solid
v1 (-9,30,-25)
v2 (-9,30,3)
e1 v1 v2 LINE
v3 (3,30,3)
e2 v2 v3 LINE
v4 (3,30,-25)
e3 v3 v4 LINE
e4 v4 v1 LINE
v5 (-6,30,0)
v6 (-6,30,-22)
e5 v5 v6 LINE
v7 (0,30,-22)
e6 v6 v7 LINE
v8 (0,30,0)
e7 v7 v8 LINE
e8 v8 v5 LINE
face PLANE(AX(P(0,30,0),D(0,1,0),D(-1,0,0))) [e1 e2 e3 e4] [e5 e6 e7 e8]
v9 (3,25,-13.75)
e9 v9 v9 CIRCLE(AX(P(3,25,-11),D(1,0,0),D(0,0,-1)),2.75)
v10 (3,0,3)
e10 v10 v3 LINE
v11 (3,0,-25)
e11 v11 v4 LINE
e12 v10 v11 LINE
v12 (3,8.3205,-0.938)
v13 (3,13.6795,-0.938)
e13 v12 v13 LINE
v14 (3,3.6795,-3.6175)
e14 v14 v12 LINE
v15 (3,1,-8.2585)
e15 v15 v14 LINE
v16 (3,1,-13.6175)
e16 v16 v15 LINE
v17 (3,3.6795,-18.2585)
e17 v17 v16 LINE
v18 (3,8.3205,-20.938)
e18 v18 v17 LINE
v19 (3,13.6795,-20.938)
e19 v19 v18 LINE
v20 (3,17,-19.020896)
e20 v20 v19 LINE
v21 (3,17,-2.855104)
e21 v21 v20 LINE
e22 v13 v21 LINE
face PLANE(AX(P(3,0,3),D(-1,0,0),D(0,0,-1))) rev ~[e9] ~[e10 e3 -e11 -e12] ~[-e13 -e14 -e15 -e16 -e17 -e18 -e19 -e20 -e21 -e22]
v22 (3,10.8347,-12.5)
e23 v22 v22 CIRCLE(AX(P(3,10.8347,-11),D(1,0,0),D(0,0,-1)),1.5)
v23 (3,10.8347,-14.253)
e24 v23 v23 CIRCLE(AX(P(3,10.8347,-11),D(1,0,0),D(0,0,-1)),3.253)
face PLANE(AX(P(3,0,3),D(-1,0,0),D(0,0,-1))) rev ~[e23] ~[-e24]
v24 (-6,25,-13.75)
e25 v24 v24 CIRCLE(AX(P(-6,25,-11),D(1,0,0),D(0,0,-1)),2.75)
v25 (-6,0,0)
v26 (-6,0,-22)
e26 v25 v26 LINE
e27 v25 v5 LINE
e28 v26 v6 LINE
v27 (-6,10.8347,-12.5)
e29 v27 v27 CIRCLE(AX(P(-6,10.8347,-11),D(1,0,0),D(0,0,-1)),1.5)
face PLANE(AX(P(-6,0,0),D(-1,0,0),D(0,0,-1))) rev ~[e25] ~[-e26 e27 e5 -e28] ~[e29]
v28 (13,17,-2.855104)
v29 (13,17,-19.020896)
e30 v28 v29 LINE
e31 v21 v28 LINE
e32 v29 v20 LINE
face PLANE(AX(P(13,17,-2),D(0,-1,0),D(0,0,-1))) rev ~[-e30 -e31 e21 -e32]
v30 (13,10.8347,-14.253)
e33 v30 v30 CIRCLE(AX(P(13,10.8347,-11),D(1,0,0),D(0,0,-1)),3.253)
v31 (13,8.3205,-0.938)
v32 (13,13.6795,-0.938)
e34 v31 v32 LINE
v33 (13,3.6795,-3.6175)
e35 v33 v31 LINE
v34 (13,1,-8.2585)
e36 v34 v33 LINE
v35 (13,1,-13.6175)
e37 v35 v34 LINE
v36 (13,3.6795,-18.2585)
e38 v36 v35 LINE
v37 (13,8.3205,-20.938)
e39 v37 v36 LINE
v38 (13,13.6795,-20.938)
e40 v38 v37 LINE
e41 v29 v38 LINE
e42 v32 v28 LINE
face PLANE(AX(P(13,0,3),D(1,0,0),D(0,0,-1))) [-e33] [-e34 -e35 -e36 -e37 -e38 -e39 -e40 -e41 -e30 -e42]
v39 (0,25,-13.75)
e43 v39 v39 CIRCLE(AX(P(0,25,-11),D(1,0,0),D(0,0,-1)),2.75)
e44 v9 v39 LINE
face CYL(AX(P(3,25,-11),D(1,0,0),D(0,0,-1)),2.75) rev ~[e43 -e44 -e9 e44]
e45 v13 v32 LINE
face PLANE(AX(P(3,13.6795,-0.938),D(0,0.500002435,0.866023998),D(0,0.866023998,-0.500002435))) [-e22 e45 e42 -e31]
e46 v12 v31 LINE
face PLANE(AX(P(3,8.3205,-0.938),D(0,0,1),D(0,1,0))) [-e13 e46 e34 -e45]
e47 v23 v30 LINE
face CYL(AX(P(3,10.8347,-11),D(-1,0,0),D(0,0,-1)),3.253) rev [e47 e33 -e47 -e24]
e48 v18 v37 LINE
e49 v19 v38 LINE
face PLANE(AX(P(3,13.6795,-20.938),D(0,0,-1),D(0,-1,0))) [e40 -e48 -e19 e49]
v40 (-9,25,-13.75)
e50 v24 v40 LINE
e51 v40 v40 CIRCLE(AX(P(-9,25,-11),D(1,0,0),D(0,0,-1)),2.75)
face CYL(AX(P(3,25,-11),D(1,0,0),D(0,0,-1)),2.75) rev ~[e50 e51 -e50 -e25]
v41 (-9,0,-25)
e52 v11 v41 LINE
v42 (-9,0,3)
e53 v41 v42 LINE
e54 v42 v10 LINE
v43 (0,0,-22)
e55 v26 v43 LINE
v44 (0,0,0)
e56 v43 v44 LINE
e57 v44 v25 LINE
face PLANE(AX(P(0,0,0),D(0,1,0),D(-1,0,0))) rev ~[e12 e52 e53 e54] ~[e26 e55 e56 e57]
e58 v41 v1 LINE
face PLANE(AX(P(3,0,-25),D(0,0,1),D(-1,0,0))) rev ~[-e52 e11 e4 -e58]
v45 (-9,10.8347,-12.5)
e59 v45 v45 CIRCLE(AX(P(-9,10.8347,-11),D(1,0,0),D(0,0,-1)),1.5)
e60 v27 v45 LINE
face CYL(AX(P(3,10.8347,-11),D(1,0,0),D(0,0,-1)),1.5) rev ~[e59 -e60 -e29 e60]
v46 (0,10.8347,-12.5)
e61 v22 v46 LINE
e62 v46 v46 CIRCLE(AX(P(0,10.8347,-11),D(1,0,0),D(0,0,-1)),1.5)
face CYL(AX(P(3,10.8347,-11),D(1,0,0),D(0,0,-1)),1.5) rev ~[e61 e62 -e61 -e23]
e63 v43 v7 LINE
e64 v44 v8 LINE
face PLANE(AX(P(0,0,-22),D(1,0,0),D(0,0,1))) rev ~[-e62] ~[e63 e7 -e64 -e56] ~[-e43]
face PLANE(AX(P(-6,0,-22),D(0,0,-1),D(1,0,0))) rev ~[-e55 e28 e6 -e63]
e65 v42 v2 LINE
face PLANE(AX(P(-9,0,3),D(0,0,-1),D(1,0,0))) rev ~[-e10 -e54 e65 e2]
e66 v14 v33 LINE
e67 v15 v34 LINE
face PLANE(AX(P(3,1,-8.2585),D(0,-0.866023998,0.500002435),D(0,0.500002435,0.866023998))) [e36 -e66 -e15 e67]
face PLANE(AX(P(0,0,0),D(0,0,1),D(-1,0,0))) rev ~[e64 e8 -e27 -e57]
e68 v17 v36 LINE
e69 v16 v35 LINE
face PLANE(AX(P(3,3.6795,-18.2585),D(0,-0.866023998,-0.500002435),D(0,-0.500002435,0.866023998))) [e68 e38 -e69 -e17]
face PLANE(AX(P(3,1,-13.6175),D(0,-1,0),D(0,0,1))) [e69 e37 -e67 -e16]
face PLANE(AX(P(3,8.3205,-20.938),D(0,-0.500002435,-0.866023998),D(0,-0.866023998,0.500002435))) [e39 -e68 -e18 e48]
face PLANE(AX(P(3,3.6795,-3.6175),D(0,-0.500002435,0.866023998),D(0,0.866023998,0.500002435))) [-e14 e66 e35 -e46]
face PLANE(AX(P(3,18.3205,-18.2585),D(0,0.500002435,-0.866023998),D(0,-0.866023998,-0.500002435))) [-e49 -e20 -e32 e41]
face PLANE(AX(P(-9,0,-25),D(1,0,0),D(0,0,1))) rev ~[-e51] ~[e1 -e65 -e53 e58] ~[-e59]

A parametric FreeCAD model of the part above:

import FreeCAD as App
import Part
import Sketcher

V = App.Vector
Q = App.Units.Quantity


def add_polygon(sketch, points):
    """Adds a closed chain of lines whose ends are joined by coincident constraints."""
    first, n = sketch.GeometryCount, len(points)
    for a, b in zip(points, points[1:] + points[:1]):
        sketch.addGeometry(Part.LineSegment(App.Vector(*a, 0), App.Vector(*b, 0)), False)
    for i in range(n):
        sketch.addConstraint(Sketcher.Constraint("Coincident", first + i, 2, first + (i + 1) % n, 1))

doc = App.newDocument("Part")
body = doc.addObject("PartDesign::Body", "Body")

# Sketch on XZ plane
sketch1 = body.newObject("Sketcher::SketchObject", "Sketch")
sketch1.AttachmentSupport = (doc.getObject("XZ_Plane"), [""])
sketch1.MapMode = "FlatFace"
add_polygon(sketch1, [(-9, -25), (-9, 3), (3, 3), (3, -25)])  # lines 0-3
add_polygon(sketch1, [(0, -22), (0, 0), (-6, 0), (-6, -22)])  # lines 4-7
sketch1.addConstraint(Sketcher.Constraint("Vertical", 0))
sketch1.addConstraint(Sketcher.Constraint("Horizontal", 1))
sketch1.addConstraint(Sketcher.Constraint("Vertical", 2))
sketch1.addConstraint(Sketcher.Constraint("Horizontal", 3))
sketch1.addConstraint(Sketcher.Constraint("Vertical", 4))
sketch1.addConstraint(Sketcher.Constraint("Horizontal", 5))
sketch1.addConstraint(Sketcher.Constraint("Vertical", 6))
sketch1.addConstraint(Sketcher.Constraint("Horizontal", 7))
sketch1.addConstraint(Sketcher.Constraint("Coincident", 4, 2, -1, 1))
sketch1.addConstraint(Sketcher.Constraint("DistanceX", 5, 2, 5, 1, Q("6 mm")))
sketch1.addConstraint(Sketcher.Constraint("DistanceY", 4, 1, 4, 2, Q("22 mm")))
sketch1.addConstraint(Sketcher.Constraint("DistanceY", -1, 1, 0, 2, Q("3 mm")))
sketch1.addConstraint(Sketcher.Constraint("DistanceX", -1, 1, 1, 2, Q("3 mm")))
sketch1.addConstraint(Sketcher.Constraint("DistanceX", 0, 2, 5, 2, Q("3 mm")))
sketch1.addConstraint(Sketcher.Constraint("DistanceY", 3, 2, 6, 2, Q("3 mm")))
pad1 = body.newObject("PartDesign::Pad", "Pad")
pad1.Profile = sketch1
pad1.Length = 30
pad1.Reversed = True

# Sketch on YZ plane
sketch2 = body.newObject("Sketcher::SketchObject", "Sketch001")
sketch2.AttachmentSupport = (doc.getObject("YZ_Plane"), [""])
sketch2.MapMode = "FlatFace"
sketch2.AttachmentOffset = App.Placement(V(0, 0, 3), App.Rotation())
sketch2.addGeometry(Part.Circle(V(25, -11, 0), V(0, 0, 1), 2.75), False)
sketch2.addConstraint(Sketcher.Constraint("Diameter", 0, Q("5.5 mm")))
sketch2.addConstraint(Sketcher.Constraint("DistanceX", -1, 1, 0, 3, Q("25 mm")))
sketch2.addConstraint(Sketcher.Constraint("DistanceY", 0, 3, -1, 1, Q("11 mm")))
pocket1 = body.newObject("PartDesign::Pocket", "Pocket")
pocket1.Profile = sketch2
pocket1.Length = 30

# Sketch on YZ plane
sketch3 = body.newObject("Sketcher::SketchObject", "Sketch002")
sketch3.AttachmentSupport = (doc.getObject("YZ_Plane"), [""])
sketch3.MapMode = "FlatFace"
sketch3.AttachmentOffset = App.Placement(V(0, 0, 3), App.Rotation())
add_polygon(sketch3, [(8.3205, -0.938), (3.6795, -3.6175), (1, -8.2585), (1, -13.6175), (3.6795, -18.2585), (8.3205, -20.938), (13.6795, -20.938), (18.3205, -18.2585), (21, -13.6175), (21, -8.2585), (18.3205, -3.6175), (13.6795, -0.938)])  # lines 0-11
sketch3.addGeometry(Part.Circle(V(10.8347, -11, 0), V(0, 0, 1), 3.253), False)  # 12
sketch3.addConstraint(Sketcher.Constraint("Vertical", 2))
sketch3.addConstraint(Sketcher.Constraint("Horizontal", 5))
sketch3.addConstraint(Sketcher.Constraint("Vertical", 8))
sketch3.addConstraint(Sketcher.Constraint("Horizontal", 11))
sketch3.addConstraint(Sketcher.Constraint("Perpendicular", 0, 3))
sketch3.addConstraint(Sketcher.Constraint("Perpendicular", 1, 4))
sketch3.addConstraint(Sketcher.Constraint("Perpendicular", 3, 6))
sketch3.addConstraint(Sketcher.Constraint("Perpendicular", 4, 7))
sketch3.addConstraint(Sketcher.Constraint("Perpendicular", 6, 9))
sketch3.addConstraint(Sketcher.Constraint("Perpendicular", 7, 10))
sketch3.addConstraint(Sketcher.Constraint("Horizontal", 3, 2, 6, 2))
sketch3.addConstraint(Sketcher.Constraint("Horizontal", 2, 2, 7, 2))
sketch3.addConstraint(Sketcher.Constraint("Horizontal", 1, 2, 8, 2))
sketch3.addConstraint(Sketcher.Constraint("Horizontal", 0, 2, 9, 2))
sketch3.addConstraint(Sketcher.Constraint("Vertical", 0, 2, 3, 2))
sketch3.addConstraint(Sketcher.Constraint("Vertical", 6, 2, 9, 2))
sketch3.addConstraint(Sketcher.Constraint("Vertical", 5, 2, 10, 2))
sketch3.addConstraint(Sketcher.Constraint("Equal", 11, 2))
sketch3.addConstraint(Sketcher.Constraint("Equal", 0, 1))
sketch3.addConstraint(Sketcher.Constraint("DistanceY", 2, 2, 0, 2, Q("10 mm")))
sketch3.addConstraint(Sketcher.Constraint("Angle", 0, Q("-149.9998 deg")))
sketch3.addConstraint(Sketcher.Constraint("Diameter", 12, Q("6.506 mm")))
sketch3.addConstraint(Sketcher.Constraint("DistanceY", 12, 3, -1, 1, Q("11 mm")))
sketch3.addConstraint(Sketcher.Constraint("DistanceX", -1, 1, 1, 2, Q("1 mm")))
sketch3.addConstraint(Sketcher.Constraint("DistanceX", -1, 1, 7, 2, Q("21 mm")))
sketch3.addConstraint(Sketcher.Constraint("DistanceY", 4, 2, -1, 1, Q("20.938 mm")))
sketch3.addConstraint(Sketcher.Constraint("DistanceX", -1, 1, 12, 3, Q("10.8347 mm")))
pad2 = body.newObject("PartDesign::Pad", "Pad001")
pad2.Profile = sketch3
pad2.Length = 10

# Sketch on YZ plane
sketch4 = body.newObject("Sketcher::SketchObject", "Sketch003")
sketch4.AttachmentSupport = (doc.getObject("YZ_Plane"), [""])
sketch4.MapMode = "FlatFace"
sketch4.AttachmentOffset = App.Placement(V(0, 0, 3), App.Rotation())
sketch4.addGeometry(Part.Circle(V(10.8347, -11, 0), V(0, 0, 1), 1.5), False)
sketch4.addConstraint(Sketcher.Constraint("Diameter", 0, Q("3 mm")))
sketch4.addConstraint(Sketcher.Constraint("DistanceY", 0, 3, -1, 1, Q("11 mm")))
sketch4.addConstraint(Sketcher.Constraint("DistanceX", -1, 1, 0, 3, Q("10.8347 mm")))
pocket2 = body.newObject("PartDesign::Pocket", "Pocket001")
pocket2.Profile = sketch4
pocket2.Length = 12

# Sketch on YZ plane
sketch5 = body.newObject("Sketcher::SketchObject", "Sketch004")
sketch5.AttachmentSupport = (doc.getObject("YZ_Plane"), [""])
sketch5.MapMode = "FlatFace"
sketch5.AttachmentOffset = App.Placement(V(0, 0, 13), App.Rotation())
add_polygon(sketch5, [(17, -20), (22, -20), (22, -2), (17, -2)])  # lines 0-3
sketch5.addConstraint(Sketcher.Constraint("Horizontal", 0))
sketch5.addConstraint(Sketcher.Constraint("Vertical", 1))
sketch5.addConstraint(Sketcher.Constraint("Horizontal", 2))
sketch5.addConstraint(Sketcher.Constraint("Vertical", 3))
sketch5.addConstraint(Sketcher.Constraint("DistanceX", 0, 1, 0, 2, Q("5 mm")))
sketch5.addConstraint(Sketcher.Constraint("DistanceY", 1, 1, 1, 2, Q("18 mm")))
sketch5.addConstraint(Sketcher.Constraint("DistanceX", -1, 1, 0, 2, Q("22 mm")))
sketch5.addConstraint(Sketcher.Constraint("DistanceY", 0, 2, -1, 1, Q("20 mm")))
pocket3 = body.newObject("PartDesign::Pocket", "Pocket002")
pocket3.Profile = sketch5
pocket3.Length = 10

doc.recompute()
